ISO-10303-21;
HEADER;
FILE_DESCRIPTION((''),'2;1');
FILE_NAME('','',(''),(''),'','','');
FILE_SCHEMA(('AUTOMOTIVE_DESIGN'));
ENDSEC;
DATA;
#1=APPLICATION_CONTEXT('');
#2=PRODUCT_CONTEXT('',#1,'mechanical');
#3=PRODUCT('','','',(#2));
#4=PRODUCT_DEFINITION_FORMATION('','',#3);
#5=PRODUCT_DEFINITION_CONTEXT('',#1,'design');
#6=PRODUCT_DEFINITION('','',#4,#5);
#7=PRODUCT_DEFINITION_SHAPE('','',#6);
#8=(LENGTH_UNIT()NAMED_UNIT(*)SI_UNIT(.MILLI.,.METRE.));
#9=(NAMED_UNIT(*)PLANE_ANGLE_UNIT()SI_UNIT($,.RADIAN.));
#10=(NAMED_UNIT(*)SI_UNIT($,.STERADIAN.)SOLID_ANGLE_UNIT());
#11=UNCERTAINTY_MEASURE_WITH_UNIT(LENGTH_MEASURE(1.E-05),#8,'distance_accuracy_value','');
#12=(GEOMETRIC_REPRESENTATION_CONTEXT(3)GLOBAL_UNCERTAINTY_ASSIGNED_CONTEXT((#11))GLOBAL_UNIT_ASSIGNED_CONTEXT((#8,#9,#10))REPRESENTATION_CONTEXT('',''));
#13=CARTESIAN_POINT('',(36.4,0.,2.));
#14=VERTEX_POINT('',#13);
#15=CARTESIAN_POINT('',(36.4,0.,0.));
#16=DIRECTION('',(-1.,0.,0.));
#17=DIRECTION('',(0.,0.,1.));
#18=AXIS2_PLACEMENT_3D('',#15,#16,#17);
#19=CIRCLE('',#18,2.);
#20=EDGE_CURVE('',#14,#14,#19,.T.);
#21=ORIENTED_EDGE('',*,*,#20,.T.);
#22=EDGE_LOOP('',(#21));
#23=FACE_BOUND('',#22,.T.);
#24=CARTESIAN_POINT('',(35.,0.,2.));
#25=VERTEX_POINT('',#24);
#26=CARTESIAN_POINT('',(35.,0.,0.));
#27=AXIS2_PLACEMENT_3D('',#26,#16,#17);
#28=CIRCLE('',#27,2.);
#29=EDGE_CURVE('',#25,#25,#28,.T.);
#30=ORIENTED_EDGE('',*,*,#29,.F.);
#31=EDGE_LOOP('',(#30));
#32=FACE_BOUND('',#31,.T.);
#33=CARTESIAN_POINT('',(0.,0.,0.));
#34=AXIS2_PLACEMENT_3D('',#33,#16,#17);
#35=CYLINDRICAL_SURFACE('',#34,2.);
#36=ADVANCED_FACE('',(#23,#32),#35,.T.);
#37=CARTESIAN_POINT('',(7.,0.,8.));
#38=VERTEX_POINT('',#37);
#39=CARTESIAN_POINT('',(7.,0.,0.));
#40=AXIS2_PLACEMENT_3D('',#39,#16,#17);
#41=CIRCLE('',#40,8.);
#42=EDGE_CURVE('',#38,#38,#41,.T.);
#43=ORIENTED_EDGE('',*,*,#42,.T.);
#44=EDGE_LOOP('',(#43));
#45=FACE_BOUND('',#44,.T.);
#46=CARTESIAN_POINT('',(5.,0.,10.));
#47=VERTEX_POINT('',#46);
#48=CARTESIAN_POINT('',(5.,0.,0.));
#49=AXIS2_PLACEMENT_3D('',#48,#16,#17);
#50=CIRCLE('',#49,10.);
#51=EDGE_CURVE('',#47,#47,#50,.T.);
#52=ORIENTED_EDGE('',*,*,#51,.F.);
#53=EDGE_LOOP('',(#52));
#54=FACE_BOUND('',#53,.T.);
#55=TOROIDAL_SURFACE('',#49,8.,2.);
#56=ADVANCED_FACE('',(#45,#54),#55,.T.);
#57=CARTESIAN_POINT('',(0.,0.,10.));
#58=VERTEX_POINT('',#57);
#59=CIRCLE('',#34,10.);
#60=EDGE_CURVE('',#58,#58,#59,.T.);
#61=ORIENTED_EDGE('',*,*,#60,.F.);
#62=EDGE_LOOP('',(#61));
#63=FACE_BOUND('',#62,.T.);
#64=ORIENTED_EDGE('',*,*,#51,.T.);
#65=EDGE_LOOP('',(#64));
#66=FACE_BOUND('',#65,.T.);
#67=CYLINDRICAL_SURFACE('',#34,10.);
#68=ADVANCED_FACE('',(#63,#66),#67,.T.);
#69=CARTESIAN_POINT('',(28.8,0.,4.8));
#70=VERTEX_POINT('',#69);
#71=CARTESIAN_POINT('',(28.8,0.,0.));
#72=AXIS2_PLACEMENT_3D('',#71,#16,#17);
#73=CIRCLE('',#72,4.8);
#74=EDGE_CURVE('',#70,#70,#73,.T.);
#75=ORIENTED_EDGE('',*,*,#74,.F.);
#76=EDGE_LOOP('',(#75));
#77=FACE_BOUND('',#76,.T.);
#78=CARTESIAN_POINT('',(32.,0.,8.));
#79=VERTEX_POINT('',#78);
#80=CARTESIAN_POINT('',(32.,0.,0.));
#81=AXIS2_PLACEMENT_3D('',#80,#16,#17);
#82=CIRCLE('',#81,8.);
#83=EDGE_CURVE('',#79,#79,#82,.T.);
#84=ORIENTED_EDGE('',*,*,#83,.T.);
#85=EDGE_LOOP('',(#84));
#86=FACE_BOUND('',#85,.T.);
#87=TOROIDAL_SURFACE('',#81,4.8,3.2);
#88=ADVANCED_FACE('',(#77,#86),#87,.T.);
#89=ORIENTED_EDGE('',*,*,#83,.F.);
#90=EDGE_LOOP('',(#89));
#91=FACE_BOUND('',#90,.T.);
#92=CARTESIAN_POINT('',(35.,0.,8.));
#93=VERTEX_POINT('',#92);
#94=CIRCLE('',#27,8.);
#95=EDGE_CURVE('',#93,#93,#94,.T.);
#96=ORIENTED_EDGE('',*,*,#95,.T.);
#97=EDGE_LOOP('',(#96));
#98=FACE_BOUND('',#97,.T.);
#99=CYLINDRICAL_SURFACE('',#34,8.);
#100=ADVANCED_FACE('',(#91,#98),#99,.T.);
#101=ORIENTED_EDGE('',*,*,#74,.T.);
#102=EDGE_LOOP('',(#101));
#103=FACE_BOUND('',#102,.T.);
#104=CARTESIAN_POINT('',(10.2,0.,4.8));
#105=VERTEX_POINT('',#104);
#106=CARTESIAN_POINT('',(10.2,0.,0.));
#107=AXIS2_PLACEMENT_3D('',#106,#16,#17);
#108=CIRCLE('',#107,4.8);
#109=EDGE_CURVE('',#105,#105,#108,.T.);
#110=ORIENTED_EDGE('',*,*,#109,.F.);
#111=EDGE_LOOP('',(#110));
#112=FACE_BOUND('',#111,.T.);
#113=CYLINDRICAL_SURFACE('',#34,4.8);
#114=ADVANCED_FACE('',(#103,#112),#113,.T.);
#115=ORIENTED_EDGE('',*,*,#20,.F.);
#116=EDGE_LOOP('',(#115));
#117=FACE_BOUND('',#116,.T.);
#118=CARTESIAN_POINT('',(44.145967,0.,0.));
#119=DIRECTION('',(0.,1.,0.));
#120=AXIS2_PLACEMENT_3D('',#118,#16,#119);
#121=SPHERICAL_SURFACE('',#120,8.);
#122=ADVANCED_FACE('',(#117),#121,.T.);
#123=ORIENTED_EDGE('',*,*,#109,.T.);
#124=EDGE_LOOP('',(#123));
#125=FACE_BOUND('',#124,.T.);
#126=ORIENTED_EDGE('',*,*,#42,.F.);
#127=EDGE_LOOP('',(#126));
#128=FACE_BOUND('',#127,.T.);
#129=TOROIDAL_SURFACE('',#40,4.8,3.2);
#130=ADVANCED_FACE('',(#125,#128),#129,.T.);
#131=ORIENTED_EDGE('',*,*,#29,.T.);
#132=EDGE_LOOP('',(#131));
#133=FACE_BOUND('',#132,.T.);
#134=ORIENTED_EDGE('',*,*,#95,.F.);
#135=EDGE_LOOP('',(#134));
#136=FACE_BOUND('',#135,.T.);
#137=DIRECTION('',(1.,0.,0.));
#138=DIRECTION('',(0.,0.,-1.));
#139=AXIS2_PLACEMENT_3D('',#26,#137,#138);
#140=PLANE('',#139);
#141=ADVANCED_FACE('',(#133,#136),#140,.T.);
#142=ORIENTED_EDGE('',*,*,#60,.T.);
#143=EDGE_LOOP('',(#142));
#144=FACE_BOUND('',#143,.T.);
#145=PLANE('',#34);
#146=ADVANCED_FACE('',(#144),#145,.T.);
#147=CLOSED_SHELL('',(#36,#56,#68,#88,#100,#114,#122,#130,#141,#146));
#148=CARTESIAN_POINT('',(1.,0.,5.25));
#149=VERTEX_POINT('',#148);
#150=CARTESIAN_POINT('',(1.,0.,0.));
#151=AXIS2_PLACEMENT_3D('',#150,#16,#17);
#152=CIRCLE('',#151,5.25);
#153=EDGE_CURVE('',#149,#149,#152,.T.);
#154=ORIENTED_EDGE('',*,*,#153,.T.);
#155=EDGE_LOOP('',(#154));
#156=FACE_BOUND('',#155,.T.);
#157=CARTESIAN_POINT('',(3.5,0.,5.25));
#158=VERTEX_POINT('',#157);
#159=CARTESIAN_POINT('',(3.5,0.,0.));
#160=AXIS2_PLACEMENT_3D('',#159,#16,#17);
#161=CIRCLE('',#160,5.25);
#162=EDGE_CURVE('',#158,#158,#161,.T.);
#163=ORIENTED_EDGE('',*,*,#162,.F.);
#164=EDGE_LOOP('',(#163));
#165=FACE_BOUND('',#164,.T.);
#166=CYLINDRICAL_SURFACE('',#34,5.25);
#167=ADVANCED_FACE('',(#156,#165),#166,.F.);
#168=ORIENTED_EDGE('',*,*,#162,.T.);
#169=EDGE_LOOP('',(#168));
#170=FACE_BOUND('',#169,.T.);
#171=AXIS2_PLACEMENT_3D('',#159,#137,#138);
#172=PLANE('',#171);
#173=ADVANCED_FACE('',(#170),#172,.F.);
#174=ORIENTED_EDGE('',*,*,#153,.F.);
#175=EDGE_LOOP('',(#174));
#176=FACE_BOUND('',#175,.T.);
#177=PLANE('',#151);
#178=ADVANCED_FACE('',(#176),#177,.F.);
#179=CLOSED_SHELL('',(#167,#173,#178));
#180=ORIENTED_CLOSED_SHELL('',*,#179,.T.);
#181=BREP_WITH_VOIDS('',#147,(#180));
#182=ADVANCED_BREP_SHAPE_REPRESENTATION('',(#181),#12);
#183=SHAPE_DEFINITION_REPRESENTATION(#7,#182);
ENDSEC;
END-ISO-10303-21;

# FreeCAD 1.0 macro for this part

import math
import FreeCAD as App
import Part
import Sketcher
from FreeCAD import Vector
Q = App.Units.Quantity

doc = App.newDocument("Part")
body = doc.addObject("PartDesign::Body", "Body")

sketch1 = body.newObject("Sketcher::SketchObject", "Sketch")
sketch1.AttachmentSupport = (doc.getObject("XY_Plane"), [""])
sketch1.MapMode = "FlatFace"
sketch1.addGeometry([
    Part.LineSegment(Vector(28.8, 4.8, 0), Vector(10.2, 4.8, 0)),
    Part.ArcOfCircle(Part.Circle(Vector(7, 4.8, 0), Vector(0, 0, 1), 3.2), math.radians(0), math.radians(90)),
    Part.ArcOfCircle(Part.Circle(Vector(5, 8, 0), Vector(0, 0, 1), 2), math.radians(0), math.radians(90)),
    Part.LineSegment(Vector(5, 10, 0), Vector(0, 10, 0)),
    Part.LineSegment(Vector(0, 10, 0), Vector(0, 0, 0)),
    Part.LineSegment(Vector(0, 0, 0), Vector(1, 0, 0)),
    Part.LineSegment(Vector(1, 0, 0), Vector(1, 5.2, 0)),
    Part.LineSegment(Vector(1, 5.2, 0), Vector(3.5, 5.2, 0)),
    Part.LineSegment(Vector(3.5, 5.2, 0), Vector(3.5, 0, 0)),
    Part.LineSegment(Vector(3.5, 0, 0), Vector(52.1, 0, 0)),
    Part.ArcOfCircle(Part.Circle(Vector(44.1, 0, 0), Vector(0, 0, 1), 8), math.radians(0), math.radians(166)),
    Part.LineSegment(Vector(36.4, 2, 0), Vector(35, 2, 0)),
    Part.LineSegment(Vector(35, 2, 0), Vector(35, 8, 0)),
    Part.LineSegment(Vector(35, 8, 0), Vector(32, 8, 0)),
    Part.ArcOfCircle(Part.Circle(Vector(32, 4.8, 0), Vector(0, 0, 1), 3.2), math.radians(90), math.radians(180)),
], False)
sketch1.addConstraint([
    Sketcher.Constraint("Coincident", 0, 2, 1, 1),
    Sketcher.Constraint("Coincident", 1, 2, 2, 1),
    Sketcher.Constraint("Tangent", 2, 2, 3, 1),
    Sketcher.Constraint("Coincident", 3, 2, 4, 1),
    Sketcher.Constraint("Coincident", 4, 2, 5, 1),
    Sketcher.Constraint("Coincident", 5, 2, 6, 1),
    Sketcher.Constraint("Coincident", 6, 2, 7, 1),
    Sketcher.Constraint("Coincident", 7, 2, 8, 1),
    Sketcher.Constraint("Coincident", 8, 2, 9, 1),
    Sketcher.Constraint("Coincident", 9, 2, 10, 1),
    Sketcher.Constraint("Coincident", 10, 2, 11, 1),
    Sketcher.Constraint("Coincident", 11, 2, 12, 1),
    Sketcher.Constraint("Coincident", 12, 2, 13, 1),
    Sketcher.Constraint("Tangent", 13, 2, 14, 1),
    Sketcher.Constraint("Coincident", 14, 2, 0, 1),
    Sketcher.Constraint("Horizontal", 0),
    Sketcher.Constraint("Horizontal", 3),
    Sketcher.Constraint("Vertical", 4),
    Sketcher.Constraint("Horizontal", 5),
    Sketcher.Constraint("Vertical", 6),
    Sketcher.Constraint("Horizontal", 7),
    Sketcher.Constraint("Vertical", 8),
    Sketcher.Constraint("Horizontal", 9),
    Sketcher.Constraint("Horizontal", 11),
    Sketcher.Constraint("Vertical", 12),
    Sketcher.Constraint("Horizontal", 13),
    Sketcher.Constraint("Coincident", 4, 2, -1, 1),
    Sketcher.Constraint("Equal", 1, 14),
    Sketcher.Constraint("PointOnObject", 10, 3, -1),
    Sketcher.Constraint("PointOnObject", 8, 2, -1),
    Sketcher.Constraint("Horizontal", 1, 3, 14, 3),
    Sketcher.Constraint("Horizontal", 14, 3, 0, 2),
    Sketcher.Constraint("Horizontal", 2, 3, 1, 2),
    Sketcher.Constraint("Radius", 2, Q("2 mm")),
    Sketcher.Constraint("Radius", 10, Q("8 mm")),
    Sketcher.Constraint("Radius", 1, Q("3.2 mm")),
    Sketcher.Constraint("DistanceX", 3, 2, 3, 1, Q("5 mm")),
    Sketcher.Constraint("DistanceX", 5, 1, 5, 2, Q("1 mm")),
    Sketcher.Constraint("DistanceX", 13, 2, 13, 1, Q("3 mm")),
    Sketcher.Constraint("DistanceY", 4, 2, 4, 1, Q("10 mm")),
    Sketcher.Constraint("DistanceY", 12, 1, 12, 2, Q("6 mm")),
    Sketcher.Constraint("DistanceX", 0, 2, 0, 1, Q("18.6 mm")),
    Sketcher.Constraint("DistanceX", 7, 1, 7, 2, Q("2.5 mm")),
    Sketcher.Constraint("DistanceX", 11, 2, 11, 1, Q("1.4 mm")),
    Sketcher.Constraint("DistanceX", -1, 1, 1, 3, Q("7 mm")),
    Sketcher.Constraint("DistanceY", 6, 1, 6, 2, Q("5.25 mm")),
])
revolution = body.newObject("PartDesign::Revolution", "Revolution")
revolution.Profile = sketch1
revolution.ReferenceAxis = (sketch1, ["H_Axis"])
revolution.Angle = 360

doc.recompute()
